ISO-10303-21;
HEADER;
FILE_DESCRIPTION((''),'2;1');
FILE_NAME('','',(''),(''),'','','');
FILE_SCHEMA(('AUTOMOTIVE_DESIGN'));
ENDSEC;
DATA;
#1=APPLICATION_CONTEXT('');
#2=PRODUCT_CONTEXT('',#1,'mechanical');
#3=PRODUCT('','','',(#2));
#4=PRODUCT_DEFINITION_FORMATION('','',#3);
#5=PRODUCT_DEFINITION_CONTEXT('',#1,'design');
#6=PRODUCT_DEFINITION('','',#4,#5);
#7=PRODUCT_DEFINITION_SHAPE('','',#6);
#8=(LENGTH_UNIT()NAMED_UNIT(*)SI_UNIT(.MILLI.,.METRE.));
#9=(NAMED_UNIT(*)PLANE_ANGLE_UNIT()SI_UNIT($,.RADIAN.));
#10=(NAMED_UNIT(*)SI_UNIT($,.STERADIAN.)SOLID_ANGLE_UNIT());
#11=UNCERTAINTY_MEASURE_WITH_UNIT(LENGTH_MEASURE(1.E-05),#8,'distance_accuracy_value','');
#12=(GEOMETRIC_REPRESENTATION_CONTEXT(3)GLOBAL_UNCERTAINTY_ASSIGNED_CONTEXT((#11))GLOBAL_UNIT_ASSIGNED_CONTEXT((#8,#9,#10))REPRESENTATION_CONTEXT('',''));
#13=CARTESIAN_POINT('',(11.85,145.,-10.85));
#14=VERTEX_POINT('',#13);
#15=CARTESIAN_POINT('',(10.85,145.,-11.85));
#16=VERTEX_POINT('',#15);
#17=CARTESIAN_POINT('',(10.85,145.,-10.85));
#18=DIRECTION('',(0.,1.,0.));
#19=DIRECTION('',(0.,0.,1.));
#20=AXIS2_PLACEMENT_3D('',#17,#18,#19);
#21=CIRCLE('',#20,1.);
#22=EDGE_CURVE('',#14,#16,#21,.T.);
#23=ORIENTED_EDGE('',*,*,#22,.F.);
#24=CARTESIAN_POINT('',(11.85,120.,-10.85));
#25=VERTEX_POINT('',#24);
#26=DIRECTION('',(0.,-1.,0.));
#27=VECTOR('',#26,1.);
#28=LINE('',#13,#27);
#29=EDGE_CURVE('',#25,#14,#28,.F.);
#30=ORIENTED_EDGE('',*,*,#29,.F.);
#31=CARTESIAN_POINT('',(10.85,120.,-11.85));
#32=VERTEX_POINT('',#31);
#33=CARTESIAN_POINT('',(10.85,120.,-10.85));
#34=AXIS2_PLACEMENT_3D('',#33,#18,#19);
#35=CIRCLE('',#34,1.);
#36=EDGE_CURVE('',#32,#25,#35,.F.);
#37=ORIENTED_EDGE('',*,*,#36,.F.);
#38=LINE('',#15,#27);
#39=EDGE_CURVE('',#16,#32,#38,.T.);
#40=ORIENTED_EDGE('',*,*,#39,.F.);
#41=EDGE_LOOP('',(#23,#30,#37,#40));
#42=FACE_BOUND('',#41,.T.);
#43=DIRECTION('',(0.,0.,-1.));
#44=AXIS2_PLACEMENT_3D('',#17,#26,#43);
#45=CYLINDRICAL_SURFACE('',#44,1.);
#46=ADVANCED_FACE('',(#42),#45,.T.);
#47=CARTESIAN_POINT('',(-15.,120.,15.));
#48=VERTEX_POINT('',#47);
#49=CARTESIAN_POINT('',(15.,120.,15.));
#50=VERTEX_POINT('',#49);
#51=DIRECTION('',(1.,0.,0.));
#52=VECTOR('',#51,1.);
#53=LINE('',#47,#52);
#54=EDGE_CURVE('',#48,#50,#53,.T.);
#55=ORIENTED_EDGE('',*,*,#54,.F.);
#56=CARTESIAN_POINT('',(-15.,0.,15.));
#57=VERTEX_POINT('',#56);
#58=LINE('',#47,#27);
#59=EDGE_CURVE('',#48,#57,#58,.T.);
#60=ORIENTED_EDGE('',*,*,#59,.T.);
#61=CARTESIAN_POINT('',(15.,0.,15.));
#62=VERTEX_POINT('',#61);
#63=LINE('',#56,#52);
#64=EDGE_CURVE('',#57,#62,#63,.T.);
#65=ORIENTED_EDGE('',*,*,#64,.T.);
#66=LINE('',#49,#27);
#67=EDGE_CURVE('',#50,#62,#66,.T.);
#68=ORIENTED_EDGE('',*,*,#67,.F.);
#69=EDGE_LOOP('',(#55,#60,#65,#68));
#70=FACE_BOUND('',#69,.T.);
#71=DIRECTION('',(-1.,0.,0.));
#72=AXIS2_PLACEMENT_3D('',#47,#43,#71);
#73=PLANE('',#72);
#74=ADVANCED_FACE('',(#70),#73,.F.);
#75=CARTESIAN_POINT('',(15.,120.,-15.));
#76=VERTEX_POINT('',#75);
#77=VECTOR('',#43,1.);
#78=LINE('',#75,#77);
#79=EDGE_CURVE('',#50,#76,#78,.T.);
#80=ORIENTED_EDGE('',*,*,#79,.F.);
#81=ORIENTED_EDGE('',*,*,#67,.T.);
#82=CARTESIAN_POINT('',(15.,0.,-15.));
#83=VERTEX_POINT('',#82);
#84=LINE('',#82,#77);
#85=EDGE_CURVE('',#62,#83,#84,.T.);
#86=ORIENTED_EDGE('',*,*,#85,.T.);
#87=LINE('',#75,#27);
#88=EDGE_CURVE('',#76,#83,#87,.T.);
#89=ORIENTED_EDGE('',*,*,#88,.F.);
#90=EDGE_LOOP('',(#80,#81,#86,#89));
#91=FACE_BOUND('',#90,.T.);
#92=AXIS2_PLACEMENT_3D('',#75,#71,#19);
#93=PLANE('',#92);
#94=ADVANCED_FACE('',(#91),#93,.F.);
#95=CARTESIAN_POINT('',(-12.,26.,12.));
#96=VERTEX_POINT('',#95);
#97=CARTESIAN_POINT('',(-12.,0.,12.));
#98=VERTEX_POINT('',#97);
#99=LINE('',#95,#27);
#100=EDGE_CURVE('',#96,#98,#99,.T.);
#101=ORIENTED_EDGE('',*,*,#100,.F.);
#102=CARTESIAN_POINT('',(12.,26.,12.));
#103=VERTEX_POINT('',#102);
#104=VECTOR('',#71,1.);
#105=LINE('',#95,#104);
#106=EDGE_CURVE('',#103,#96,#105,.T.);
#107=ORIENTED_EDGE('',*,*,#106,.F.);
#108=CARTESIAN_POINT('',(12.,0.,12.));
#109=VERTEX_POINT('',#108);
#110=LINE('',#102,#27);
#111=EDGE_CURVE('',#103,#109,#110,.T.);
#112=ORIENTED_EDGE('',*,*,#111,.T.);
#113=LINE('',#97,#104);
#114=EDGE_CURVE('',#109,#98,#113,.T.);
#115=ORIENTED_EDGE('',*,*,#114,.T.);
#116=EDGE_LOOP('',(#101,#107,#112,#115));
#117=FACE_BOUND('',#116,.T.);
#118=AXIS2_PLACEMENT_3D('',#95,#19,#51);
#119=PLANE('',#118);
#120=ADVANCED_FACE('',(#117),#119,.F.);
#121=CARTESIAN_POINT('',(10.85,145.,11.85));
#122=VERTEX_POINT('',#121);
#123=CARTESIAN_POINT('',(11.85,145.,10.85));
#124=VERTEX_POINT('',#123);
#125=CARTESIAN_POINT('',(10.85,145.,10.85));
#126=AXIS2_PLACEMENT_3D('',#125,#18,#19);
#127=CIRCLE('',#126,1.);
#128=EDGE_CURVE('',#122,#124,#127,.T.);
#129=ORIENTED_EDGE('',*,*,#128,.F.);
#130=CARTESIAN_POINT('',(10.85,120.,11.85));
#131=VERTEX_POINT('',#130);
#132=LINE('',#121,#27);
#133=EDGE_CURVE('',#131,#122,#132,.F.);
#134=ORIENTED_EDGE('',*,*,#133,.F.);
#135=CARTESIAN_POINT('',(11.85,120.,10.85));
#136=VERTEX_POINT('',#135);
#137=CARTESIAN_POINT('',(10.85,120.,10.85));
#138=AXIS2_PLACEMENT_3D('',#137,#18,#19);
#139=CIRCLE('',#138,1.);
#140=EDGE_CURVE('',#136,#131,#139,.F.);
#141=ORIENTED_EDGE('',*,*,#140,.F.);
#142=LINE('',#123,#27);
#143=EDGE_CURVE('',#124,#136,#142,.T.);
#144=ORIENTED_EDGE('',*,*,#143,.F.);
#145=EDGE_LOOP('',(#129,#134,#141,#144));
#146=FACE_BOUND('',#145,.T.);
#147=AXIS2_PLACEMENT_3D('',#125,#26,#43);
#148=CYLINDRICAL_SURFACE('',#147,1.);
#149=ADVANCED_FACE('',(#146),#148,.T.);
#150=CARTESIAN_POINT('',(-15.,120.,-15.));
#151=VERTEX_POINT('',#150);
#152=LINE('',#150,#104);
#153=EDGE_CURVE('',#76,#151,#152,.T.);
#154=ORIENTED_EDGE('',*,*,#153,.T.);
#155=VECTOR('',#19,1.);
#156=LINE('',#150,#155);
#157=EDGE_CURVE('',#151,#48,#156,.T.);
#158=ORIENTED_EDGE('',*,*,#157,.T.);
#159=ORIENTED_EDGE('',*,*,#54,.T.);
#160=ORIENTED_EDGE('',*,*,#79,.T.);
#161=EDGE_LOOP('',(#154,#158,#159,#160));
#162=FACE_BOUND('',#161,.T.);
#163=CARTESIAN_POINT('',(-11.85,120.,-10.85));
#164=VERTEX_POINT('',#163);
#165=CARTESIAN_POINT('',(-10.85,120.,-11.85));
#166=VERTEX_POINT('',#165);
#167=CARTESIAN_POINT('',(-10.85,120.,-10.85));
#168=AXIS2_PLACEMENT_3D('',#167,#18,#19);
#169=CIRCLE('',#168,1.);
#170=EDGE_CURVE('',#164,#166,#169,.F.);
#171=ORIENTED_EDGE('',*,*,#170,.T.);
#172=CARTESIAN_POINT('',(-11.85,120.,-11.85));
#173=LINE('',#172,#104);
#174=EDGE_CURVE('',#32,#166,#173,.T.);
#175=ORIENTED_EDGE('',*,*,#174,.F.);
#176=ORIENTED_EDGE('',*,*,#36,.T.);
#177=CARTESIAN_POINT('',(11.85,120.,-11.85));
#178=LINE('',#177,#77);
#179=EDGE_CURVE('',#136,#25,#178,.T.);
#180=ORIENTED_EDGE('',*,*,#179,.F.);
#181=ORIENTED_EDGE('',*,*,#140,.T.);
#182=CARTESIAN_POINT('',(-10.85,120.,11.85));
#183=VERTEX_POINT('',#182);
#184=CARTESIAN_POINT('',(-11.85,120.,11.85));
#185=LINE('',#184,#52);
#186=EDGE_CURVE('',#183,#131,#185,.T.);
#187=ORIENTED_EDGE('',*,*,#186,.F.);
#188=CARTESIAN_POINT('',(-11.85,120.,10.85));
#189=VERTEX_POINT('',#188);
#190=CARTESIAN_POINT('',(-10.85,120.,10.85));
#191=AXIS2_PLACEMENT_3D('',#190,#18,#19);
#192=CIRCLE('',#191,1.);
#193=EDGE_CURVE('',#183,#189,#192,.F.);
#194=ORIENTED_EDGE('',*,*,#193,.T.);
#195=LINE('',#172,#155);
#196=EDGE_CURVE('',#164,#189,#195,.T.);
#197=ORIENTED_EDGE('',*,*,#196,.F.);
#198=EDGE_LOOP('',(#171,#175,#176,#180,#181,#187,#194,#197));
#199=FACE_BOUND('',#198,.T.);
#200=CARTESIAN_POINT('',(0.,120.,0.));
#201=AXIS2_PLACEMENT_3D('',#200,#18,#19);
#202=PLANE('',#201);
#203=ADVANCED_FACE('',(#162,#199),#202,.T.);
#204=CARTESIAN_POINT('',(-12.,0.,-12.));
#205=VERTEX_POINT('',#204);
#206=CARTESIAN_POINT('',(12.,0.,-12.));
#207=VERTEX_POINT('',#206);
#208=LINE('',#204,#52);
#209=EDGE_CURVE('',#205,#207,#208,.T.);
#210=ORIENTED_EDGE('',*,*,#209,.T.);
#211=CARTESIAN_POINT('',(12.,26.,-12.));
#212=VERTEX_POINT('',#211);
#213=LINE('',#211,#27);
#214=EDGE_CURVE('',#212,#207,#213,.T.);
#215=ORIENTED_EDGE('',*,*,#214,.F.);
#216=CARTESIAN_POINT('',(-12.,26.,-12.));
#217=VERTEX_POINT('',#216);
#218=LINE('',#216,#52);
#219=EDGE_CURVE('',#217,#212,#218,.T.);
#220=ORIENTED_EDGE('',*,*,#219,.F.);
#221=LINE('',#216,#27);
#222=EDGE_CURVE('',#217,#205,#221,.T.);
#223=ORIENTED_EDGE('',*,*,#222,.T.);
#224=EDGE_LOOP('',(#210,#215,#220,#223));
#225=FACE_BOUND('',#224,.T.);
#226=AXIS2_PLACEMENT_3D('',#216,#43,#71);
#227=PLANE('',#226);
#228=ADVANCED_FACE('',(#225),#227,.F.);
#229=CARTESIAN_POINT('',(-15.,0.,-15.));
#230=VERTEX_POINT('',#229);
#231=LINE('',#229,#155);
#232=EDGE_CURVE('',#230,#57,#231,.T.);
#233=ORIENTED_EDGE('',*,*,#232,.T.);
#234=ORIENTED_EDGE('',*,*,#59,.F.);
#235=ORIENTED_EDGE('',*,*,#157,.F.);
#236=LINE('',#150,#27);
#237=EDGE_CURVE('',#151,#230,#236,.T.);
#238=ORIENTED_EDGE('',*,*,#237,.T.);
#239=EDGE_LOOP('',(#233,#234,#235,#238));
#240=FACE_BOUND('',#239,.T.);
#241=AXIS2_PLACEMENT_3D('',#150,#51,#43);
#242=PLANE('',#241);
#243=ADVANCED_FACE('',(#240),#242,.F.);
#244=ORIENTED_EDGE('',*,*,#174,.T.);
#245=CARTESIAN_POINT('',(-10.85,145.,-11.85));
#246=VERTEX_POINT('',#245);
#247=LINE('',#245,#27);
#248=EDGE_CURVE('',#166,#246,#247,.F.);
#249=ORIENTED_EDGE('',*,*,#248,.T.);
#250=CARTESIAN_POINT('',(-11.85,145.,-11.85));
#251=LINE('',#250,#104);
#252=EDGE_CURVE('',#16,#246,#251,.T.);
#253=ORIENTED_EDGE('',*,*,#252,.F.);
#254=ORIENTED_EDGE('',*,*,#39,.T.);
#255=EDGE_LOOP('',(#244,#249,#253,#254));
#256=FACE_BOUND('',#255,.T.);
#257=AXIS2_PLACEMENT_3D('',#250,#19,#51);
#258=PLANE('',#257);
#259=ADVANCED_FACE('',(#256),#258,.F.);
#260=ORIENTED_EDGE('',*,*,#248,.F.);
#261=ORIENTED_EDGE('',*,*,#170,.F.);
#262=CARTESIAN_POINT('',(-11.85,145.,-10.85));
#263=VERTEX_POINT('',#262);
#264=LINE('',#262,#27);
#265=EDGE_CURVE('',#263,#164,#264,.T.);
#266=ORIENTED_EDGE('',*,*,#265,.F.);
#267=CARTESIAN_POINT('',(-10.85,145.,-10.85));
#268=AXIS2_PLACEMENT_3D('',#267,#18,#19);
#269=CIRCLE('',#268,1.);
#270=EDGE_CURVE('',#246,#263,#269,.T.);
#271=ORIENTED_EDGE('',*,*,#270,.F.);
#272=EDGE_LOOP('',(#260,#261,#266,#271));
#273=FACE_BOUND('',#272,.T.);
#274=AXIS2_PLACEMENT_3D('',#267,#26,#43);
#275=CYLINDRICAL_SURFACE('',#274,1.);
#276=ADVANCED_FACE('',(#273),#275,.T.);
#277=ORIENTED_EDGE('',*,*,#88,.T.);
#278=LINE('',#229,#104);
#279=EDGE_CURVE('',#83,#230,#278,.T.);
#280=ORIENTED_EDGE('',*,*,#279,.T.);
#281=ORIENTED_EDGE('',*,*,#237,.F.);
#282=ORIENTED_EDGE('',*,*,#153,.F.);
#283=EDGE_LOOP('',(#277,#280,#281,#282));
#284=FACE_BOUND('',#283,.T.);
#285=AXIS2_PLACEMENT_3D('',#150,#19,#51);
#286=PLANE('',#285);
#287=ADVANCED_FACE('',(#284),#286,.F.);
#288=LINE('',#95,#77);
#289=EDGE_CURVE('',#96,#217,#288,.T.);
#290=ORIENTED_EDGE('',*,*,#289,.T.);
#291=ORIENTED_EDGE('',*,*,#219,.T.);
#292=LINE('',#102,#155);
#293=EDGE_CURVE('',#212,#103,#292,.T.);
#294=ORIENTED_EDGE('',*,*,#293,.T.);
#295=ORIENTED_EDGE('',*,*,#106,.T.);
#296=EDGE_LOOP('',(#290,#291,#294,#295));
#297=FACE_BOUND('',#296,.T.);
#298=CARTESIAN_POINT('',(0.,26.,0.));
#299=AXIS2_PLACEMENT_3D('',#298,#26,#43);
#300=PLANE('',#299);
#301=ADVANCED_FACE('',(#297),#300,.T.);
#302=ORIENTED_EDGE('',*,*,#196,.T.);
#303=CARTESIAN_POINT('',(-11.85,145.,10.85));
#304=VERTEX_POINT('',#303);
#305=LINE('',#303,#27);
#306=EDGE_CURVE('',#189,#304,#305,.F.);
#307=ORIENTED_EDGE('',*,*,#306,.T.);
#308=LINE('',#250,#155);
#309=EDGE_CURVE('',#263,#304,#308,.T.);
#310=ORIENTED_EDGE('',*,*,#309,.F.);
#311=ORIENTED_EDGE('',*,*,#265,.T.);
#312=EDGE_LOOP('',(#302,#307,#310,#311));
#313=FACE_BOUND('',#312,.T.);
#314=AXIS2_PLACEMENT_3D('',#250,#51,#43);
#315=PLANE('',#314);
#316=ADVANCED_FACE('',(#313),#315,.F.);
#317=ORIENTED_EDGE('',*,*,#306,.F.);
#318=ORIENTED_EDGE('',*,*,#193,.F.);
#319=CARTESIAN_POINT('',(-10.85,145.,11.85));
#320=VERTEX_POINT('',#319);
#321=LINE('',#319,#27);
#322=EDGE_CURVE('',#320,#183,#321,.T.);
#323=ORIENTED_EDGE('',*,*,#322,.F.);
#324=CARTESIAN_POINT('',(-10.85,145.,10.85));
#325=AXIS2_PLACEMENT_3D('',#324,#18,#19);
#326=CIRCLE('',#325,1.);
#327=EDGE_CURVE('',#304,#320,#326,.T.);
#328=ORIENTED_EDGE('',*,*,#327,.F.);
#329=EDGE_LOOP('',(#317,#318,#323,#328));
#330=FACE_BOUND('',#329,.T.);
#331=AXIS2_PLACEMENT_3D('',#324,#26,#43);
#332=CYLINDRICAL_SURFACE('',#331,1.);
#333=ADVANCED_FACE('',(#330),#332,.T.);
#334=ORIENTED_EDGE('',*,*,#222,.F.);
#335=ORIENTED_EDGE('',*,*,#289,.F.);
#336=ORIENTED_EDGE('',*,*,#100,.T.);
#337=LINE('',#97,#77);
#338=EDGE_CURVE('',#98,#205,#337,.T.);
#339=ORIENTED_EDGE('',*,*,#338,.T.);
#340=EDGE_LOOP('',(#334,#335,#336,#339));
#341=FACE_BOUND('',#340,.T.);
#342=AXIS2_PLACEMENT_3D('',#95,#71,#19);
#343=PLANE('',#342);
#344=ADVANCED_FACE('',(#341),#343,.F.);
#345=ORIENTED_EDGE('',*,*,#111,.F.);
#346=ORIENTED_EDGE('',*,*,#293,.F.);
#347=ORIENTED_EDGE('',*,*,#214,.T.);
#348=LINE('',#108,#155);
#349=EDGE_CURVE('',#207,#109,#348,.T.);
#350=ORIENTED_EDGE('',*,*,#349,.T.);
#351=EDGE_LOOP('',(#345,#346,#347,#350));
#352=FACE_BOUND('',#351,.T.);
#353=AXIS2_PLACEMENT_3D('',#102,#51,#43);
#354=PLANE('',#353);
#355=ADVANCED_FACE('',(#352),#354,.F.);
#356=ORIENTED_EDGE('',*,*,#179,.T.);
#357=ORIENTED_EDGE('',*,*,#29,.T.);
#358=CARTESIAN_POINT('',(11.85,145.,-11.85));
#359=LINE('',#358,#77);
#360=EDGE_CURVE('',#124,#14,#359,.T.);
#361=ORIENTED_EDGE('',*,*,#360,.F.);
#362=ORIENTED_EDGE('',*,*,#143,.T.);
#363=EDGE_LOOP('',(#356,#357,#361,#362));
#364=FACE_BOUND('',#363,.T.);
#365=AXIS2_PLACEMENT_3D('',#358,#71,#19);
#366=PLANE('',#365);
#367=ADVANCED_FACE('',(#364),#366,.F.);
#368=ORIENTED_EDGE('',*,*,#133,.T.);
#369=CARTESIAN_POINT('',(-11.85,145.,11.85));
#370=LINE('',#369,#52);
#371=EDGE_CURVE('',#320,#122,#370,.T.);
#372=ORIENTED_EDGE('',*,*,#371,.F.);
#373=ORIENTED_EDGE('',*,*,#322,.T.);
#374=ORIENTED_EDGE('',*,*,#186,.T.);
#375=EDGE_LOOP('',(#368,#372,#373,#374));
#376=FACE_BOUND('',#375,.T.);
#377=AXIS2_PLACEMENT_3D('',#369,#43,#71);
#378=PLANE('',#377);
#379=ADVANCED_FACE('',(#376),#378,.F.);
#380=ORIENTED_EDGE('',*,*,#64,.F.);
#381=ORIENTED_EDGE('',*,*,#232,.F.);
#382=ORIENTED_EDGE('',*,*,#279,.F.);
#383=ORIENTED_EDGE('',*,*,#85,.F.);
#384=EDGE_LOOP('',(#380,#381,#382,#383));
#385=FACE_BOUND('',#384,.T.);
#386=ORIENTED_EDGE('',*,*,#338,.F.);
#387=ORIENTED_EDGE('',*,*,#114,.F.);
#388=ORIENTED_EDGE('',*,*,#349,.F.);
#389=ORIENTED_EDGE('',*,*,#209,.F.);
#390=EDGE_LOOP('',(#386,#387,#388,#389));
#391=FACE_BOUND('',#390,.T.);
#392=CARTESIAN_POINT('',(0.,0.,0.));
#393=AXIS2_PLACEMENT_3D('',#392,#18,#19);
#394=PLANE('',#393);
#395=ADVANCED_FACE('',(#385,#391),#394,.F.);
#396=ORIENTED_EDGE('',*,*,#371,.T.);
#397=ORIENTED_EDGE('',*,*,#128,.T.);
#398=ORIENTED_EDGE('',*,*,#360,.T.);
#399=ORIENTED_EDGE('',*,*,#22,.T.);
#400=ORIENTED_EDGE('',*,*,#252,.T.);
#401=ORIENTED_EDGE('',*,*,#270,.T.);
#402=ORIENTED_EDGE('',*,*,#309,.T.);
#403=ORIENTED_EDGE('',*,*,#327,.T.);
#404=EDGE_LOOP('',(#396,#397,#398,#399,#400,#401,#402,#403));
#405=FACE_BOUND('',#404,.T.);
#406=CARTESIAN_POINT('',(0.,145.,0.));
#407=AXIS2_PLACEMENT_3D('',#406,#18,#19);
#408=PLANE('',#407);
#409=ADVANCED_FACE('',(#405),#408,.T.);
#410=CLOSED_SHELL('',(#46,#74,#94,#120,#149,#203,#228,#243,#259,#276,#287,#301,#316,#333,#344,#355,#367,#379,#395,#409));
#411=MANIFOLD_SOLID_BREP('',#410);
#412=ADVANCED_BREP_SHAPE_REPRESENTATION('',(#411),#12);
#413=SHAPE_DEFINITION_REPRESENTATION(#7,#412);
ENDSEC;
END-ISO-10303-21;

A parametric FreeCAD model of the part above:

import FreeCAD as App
import Part
import Sketcher

V = App.Vector


def edges_at(feature, points):
    """Names of the edges that pass closest to the given points."""
    edges = feature.Shape.Edges
    near = lambda p: min(range(len(edges)), key=lambda i: edges[i].distToShape(Part.Vertex(*p))[0])
    return sorted({f"Edge{near(p) + 1}" for p in points})

doc = App.newDocument("Part")
body = doc.addObject("PartDesign::Body", "Body")

# Sketch on XZ plane
sketch1 = body.newObject("Sketcher::SketchObject", "Sketch")
sketch1.AttachmentSupport = (doc.getObject("XZ_Plane"), [""])
sketch1.MapMode = "FlatFace"
sketch1.addGeometry([
    Part.LineSegment(V(-15, -15, 0), V(-15, 15, 0)),
    Part.LineSegment(V(-15, 15, 0), V(15, 15, 0)),
    Part.LineSegment(V(15, 15, 0), V(15, -15, 0)),
    Part.LineSegment(V(15, -15, 0), V(-15, -15, 0)),
], False)
sketch1.addConstraint([
    Sketcher.Constraint("Coincident", 0, 2, 1, 1),
    Sketcher.Constraint("Coincident", 1, 2, 2, 1),
    Sketcher.Constraint("Coincident", 2, 2, 3, 1),
    Sketcher.Constraint("Coincident", 3, 2, 0, 1),
    Sketcher.Constraint("Vertical", 0),
    Sketcher.Constraint("Horizontal", 1),
    Sketcher.Constraint("Vertical", 2),
    Sketcher.Constraint("Horizontal", 3),
    Sketcher.Constraint("Symmetric", 0, 2, 2, 2, -1, 1),
    Sketcher.Constraint("Equal", 3, 0),
    Sketcher.Constraint("DistanceX", 1, 1, 1, 2, 30.0),
])
pad1 = body.newObject("PartDesign::Pad", "Pad")
pad1.Profile = sketch1
pad1.Length = 120
pad1.Reversed = True

# Sketch on XZ plane
sketch2 = body.newObject("Sketcher::SketchObject", "Sketch001")
sketch2.AttachmentSupport = (doc.getObject("XZ_Plane"), [""])
sketch2.MapMode = "FlatFace"
sketch2.AttachmentOffset = App.Placement(V(0, 0, -120), App.Rotation())
sketch2.addGeometry([
    Part.LineSegment(V(-11.85, -11.85, 0), V(-11.85, 11.85, 0)),
    Part.LineSegment(V(-11.85, 11.85, 0), V(11.85, 11.85, 0)),
    Part.LineSegment(V(11.85, 11.85, 0), V(11.85, -11.85, 0)),
    Part.LineSegment(V(11.85, -11.85, 0), V(-11.85, -11.85, 0)),
], False)
sketch2.addConstraint([
    Sketcher.Constraint("Coincident", 0, 2, 1, 1),
    Sketcher.Constraint("Coincident", 1, 2, 2, 1),
    Sketcher.Constraint("Coincident", 2, 2, 3, 1),
    Sketcher.Constraint("Coincident", 3, 2, 0, 1),
    Sketcher.Constraint("Vertical", 0),
    Sketcher.Constraint("Horizontal", 1),
    Sketcher.Constraint("Vertical", 2),
    Sketcher.Constraint("Horizontal", 3),
    Sketcher.Constraint("Symmetric", 0, 2, 2, 2, -1, 1),
    Sketcher.Constraint("Equal", 3, 0),
    Sketcher.Constraint("DistanceX", 1, 1, 1, 2, 23.7),
])
pad2 = body.newObject("PartDesign::Pad", "Pad001")
pad2.Profile = sketch2
pad2.Length = 25
pad2.Reversed = True

# Sketch on XZ plane
sketch3 = body.newObject("Sketcher::SketchObject", "Sketch002")
sketch3.AttachmentSupport = (doc.getObject("XZ_Plane"), [""])
sketch3.MapMode = "FlatFace"
sketch3.addGeometry([
    Part.LineSegment(V(-12, 12, 0), V(-12, -12, 0)),
    Part.LineSegment(V(-12, -12, 0), V(12, -12, 0)),
    Part.LineSegment(V(12, -12, 0), V(12, 12, 0)),
    Part.LineSegment(V(12, 12, 0), V(-12, 12, 0)),
], False)
sketch3.addConstraint([
    Sketcher.Constraint("Coincident", 0, 2, 1, 1),
    Sketcher.Constraint("Coincident", 1, 2, 2, 1),
    Sketcher.Constraint("Coincident", 2, 2, 3, 1),
    Sketcher.Constraint("Coincident", 3, 2, 0, 1),
    Sketcher.Constraint("Vertical", 0),
    Sketcher.Constraint("Horizontal", 1),
    Sketcher.Constraint("Vertical", 2),
    Sketcher.Constraint("Horizontal", 3),
    Sketcher.Constraint("Symmetric", 0, 2, 2, 2, -1, 1),
    Sketcher.Constraint("Equal", 3, 0),
    Sketcher.Constraint("DistanceX", 1, 1, 1, 2, 24.0),
])
pocket1 = body.newObject("PartDesign::Pocket", "Pocket")
pocket1.Profile = sketch3
pocket1.Length = 26
doc.recompute()

fillet = body.newObject("PartDesign::Fillet", "Fillet")
fillet.Base = (pocket1, edges_at(pocket1, [
    (11.85, 132.5, 11.85),
    (11.85, 132.5, -11.85),
    (-11.85, 132.5, -11.85),
    (-11.85, 132.5, 11.85),
]))
fillet.Radius = 1

doc.recompute()
